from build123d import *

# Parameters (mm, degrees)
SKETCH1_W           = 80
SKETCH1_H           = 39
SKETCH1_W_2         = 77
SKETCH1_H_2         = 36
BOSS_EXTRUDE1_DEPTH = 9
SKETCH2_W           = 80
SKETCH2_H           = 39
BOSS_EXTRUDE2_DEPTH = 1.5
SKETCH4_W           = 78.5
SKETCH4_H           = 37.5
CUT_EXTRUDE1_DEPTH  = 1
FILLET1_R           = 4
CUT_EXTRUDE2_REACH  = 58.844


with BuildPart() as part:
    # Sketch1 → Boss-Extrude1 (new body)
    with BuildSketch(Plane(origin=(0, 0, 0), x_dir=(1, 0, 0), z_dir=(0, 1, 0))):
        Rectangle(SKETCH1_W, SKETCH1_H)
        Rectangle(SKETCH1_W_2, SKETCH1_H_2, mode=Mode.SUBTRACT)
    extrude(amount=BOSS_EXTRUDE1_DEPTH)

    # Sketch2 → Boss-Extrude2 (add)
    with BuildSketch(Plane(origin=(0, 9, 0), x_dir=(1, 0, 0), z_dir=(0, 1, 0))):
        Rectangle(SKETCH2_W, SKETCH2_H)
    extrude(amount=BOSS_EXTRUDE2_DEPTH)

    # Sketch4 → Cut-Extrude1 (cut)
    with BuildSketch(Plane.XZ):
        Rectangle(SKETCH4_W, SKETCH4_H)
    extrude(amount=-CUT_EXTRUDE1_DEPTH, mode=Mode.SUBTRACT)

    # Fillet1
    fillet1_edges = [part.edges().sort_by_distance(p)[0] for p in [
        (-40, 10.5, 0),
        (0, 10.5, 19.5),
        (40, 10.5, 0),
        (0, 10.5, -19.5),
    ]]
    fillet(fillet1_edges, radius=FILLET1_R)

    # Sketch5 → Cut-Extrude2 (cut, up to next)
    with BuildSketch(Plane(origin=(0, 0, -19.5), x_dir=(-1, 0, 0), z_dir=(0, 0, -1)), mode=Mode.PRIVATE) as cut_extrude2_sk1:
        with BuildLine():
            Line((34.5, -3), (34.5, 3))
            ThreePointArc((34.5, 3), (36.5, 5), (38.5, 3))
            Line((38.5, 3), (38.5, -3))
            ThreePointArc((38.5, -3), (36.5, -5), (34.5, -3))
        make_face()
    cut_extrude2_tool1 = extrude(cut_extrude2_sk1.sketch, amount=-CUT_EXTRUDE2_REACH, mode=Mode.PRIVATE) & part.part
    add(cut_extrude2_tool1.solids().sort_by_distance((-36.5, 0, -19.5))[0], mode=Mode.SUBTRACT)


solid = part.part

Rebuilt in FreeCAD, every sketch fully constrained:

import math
import FreeCAD as App
import Part
import Sketcher
from FreeCAD import Vector
Q = App.Units.Quantity


def edges_at(feature, points):
    """Names of the edges that pass closest to the given points."""
    edges = feature.Shape.Edges
    near = lambda p: min(range(len(edges)), key=lambda i: edges[i].distToShape(Part.Vertex(*p))[0])
    return sorted({f"Edge{near(p) + 1}" for p in points})


def add_polygon(sketch, points):
    """Adds a closed chain of lines whose ends are joined by coincident constraints."""
    first, n = sketch.GeometryCount, len(points)
    for a, b in zip(points, points[1:] + points[:1]):
        sketch.addGeometry(Part.LineSegment(App.Vector(*a, 0), App.Vector(*b, 0)), False)
    for i in range(n):
        sketch.addConstraint(Sketcher.Constraint("Coincident", first + i, 2, first + (i + 1) % n, 1))

doc = App.newDocument("Part")
body = doc.addObject("PartDesign::Body", "Body")

sketch1 = doc.addObject("Sketcher::SketchObject", "Sketch")
body.addObject(sketch1)
sketch1.AttachmentSupport = (doc.XZ_Plane, [""])
sketch1.MapMode = "FlatFace"
add_polygon(sketch1, [(-40, -20), (-40, 20), (40, 20), (40, -20)])
add_polygon(sketch1, [(38, 18), (-38, 18), (-38, -18), (38, -18)])
sketch1.addConstraint([
    Sketcher.Constraint("Vertical", 0),
    Sketcher.Constraint("Horizontal", 1),
    Sketcher.Constraint("Vertical", 2),
    Sketcher.Constraint("Horizontal", 3),
    Sketcher.Constraint("Horizontal", 4),
    Sketcher.Constraint("Vertical", 5),
    Sketcher.Constraint("Horizontal", 6),
    Sketcher.Constraint("Vertical", 7),
    Sketcher.Constraint("Symmetric", 0, 2, 2, 2, -1, 1),
    Sketcher.Constraint("Symmetric", 4, 2, 6, 2, -1, 1),
    Sketcher.Constraint("DistanceX", 1, 1, 1, 2, Q("80 mm")),
    Sketcher.Constraint("DistanceX", 4, 2, 4, 1, Q("77 mm")),
    Sketcher.Constraint("DistanceY", 0, 1, 0, 2, Q("39 mm")),
    Sketcher.Constraint("DistanceY", 5, 2, 5, 1, Q("36 mm")),
])
pad1 = doc.addObject("PartDesign::Pad", "Pad")
body.addObject(pad1)
pad1.Profile = sketch1
pad1.Length = 9
pad1.Reversed = True

sketch2 = doc.addObject("Sketcher::SketchObject", "Sketch001")
body.addObject(sketch2)
sketch2.AttachmentSupport = (doc.XZ_Plane, [""])
sketch2.MapMode = "FlatFace"
sketch2.AttachmentOffset = App.Placement(Vector(0, 0, -9), App.Rotation())
add_polygon(sketch2, [(-40, -20), (-40, 20), (40, 20), (40, -20)])
sketch2.addConstraint([
    Sketcher.Constraint("Vertical", 0),
    Sketcher.Constraint("Horizontal", 1),
    Sketcher.Constraint("Vertical", 2),
    Sketcher.Constraint("Horizontal", 3),
    Sketcher.Constraint("Symmetric", 0, 2, 2, 2, -1, 1),
    Sketcher.Constraint("DistanceX", 1, 1, 1, 2, Q("80 mm")),
    Sketcher.Constraint("DistanceY", 0, 1, 0, 2, Q("39 mm")),
])
pad2 = doc.addObject("PartDesign::Pad", "Pad001")
body.addObject(pad2)
pad2.Profile = sketch2
pad2.Length = 1.5
pad2.Reversed = True

sketch3 = doc.addObject("Sketcher::SketchObject", "Sketch002")
body.addObject(sketch3)
sketch3.AttachmentSupport = (doc.XZ_Plane, [""])
sketch3.MapMode = "FlatFace"
add_polygon(sketch3, [(-39, 19), (-39, -19), (39, -19), (39, 19)])
sketch3.addConstraint([
    Sketcher.Constraint("Vertical", 0),
    Sketcher.Constraint("Horizontal", 1),
    Sketcher.Constraint("Vertical", 2),
    Sketcher.Constraint("Horizontal", 3),
    Sketcher.Constraint("Symmetric", 0, 2, 2, 2, -1, 1),
    Sketcher.Constraint("DistanceX", 1, 1, 1, 2, Q("78.5 mm")),
    Sketcher.Constraint("DistanceY", 0, 2, 0, 1, Q("37.5 mm")),
])
pocket1 = doc.addObject("PartDesign::Pocket", "Pocket")
body.addObject(pocket1)
pocket1.Profile = sketch3
pocket1.Length = 1
doc.recompute()

fillet = doc.addObject("PartDesign::Fillet", "Fillet")
body.addObject(fillet)
fillet.Base = (pocket1, edges_at(pocket1, [
    (-40, 10.5, 0),
    (0, 10.5, 19.5),
    (40, 10.5, 0),
    (0, 10.5, -19.5),
]))
fillet.Radius = 4

sketch4 = doc.addObject("Sketcher::SketchObject", "Sketch003")
body.addObject(sketch4)
sketch4.AttachmentSupport = (doc.XY_Plane, [""])
sketch4.MapMode = "FlatFace"
sketch4.AttachmentOffset = App.Placement(Vector(0, 0, -19.5), App.Rotation())
sketch4.addGeometry([
    Part.LineSegment(Vector(-34.5, 3, 0), Vector(-34.5, -3, 0)),
    Part.ArcOfCircle(Part.Circle(Vector(-36.5, -3, 0), Vector(0, 0, 1), 2), math.radians(180), math.radians(360)),
    Part.LineSegment(Vector(-38.5, -3, 0), Vector(-38.5, 3, 0)),
    Part.ArcOfCircle(Part.Circle(Vector(-36.5, 3, 0), Vector(0, 0, 1), 2), math.radians(0), math.radians(180)),
], False)
sketch4.addConstraint([
    Sketcher.Constraint("Tangent", 0, 2, 1, 2),
    Sketcher.Constraint("Tangent", 1, 1, 2, 1),
    Sketcher.Constraint("Tangent", 2, 2, 3, 2),
    Sketcher.Constraint("Tangent", 3, 1, 0, 1),
    Sketcher.Constraint("Vertical", 0),
    Sketcher.Constraint("Vertical", 2),
    Sketcher.Constraint("Radius", 1, Q("2 mm")),
    Sketcher.Constraint("DistanceY", 0, 2, 0, 1, Q("6 mm")),
    Sketcher.Constraint("DistanceY", 1, 3, -1, 1, Q("3 mm")),
    Sketcher.Constraint("DistanceX", 1, 3, -1, 1, Q("36.5 mm")),
])
pocket2 = doc.addObject("PartDesign::Pocket", "Pocket001")
body.addObject(pocket2)
pocket2.Profile = sketch4
pocket2.Length = 1.5
pocket2.Reversed = True

doc.recompute()
